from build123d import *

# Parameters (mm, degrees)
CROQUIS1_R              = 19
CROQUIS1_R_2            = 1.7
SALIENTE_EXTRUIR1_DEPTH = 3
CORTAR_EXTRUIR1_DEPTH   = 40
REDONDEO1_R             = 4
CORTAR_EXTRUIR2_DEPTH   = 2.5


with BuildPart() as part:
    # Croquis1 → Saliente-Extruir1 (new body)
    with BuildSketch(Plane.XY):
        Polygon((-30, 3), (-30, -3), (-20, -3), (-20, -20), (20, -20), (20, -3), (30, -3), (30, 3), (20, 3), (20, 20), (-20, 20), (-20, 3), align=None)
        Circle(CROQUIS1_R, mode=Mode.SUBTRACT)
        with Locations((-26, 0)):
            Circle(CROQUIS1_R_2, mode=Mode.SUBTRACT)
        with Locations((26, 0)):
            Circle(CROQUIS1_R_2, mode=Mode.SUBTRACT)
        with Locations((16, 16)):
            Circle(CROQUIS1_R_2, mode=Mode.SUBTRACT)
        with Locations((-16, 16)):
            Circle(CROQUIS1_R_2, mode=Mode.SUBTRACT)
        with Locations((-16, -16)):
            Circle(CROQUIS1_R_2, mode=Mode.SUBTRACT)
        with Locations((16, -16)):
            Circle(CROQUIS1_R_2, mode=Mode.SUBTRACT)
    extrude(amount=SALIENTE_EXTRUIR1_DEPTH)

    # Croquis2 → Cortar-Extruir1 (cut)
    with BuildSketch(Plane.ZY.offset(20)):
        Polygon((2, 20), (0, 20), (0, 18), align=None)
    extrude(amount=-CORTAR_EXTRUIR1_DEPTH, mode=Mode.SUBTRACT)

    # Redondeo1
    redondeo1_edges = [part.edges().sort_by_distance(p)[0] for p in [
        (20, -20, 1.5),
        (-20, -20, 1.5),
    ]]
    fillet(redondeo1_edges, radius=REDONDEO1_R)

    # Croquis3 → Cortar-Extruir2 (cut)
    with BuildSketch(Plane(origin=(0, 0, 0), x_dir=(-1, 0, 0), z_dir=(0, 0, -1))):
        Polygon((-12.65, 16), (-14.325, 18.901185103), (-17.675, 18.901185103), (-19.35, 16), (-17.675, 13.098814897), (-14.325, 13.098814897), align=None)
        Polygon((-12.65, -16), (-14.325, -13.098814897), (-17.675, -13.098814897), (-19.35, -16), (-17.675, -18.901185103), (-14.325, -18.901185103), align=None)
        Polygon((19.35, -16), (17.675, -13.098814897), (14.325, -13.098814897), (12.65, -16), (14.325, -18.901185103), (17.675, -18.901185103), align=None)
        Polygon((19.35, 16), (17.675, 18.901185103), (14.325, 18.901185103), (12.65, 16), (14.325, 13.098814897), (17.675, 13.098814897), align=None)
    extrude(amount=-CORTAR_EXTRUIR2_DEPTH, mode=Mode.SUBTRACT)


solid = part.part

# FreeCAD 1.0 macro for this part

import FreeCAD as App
import Part
import Sketcher

V = App.Vector
Q = App.Units.Quantity


def edges_at(feature, points):
    """Names of the edges that pass closest to the given points."""
    edges = feature.Shape.Edges
    near = lambda p: min(range(len(edges)), key=lambda i: edges[i].distToShape(Part.Vertex(*p))[0])
    return sorted({f"Edge{near(p) + 1}" for p in points})

doc = App.newDocument("Part")
body = doc.addObject("PartDesign::Body", "Body")

sketch1 = doc.addObject("Sketcher::SketchObject", "Sketch")
body.addObject(sketch1)
sketch1.AttachmentSupport = (doc.XY_Plane, [""])
sketch1.MapMode = "FlatFace"
sketch1.addGeometry(Part.LineSegment(V(-30, 3, 0), V(-30, -3, 0)), False)
sketch1.addGeometry(Part.LineSegment(V(-30, -3, 0), V(-20, -3, 0)), False)
sketch1.addGeometry(Part.LineSegment(V(-20, -3, 0), V(-20, -20, 0)), False)
sketch1.addGeometry(Part.LineSegment(V(-20, -20, 0), V(20, -20, 0)), False)
sketch1.addGeometry(Part.LineSegment(V(20, -20, 0), V(20, -3, 0)), False)
sketch1.addGeometry(Part.LineSegment(V(20, -3, 0), V(30, -3, 0)), False)
sketch1.addGeometry(Part.LineSegment(V(30, -3, 0), V(30, 3, 0)), False)
sketch1.addGeometry(Part.LineSegment(V(30, 3, 0), V(20, 3, 0)), False)
sketch1.addGeometry(Part.LineSegment(V(20, 3, 0), V(20, 20, 0)), False)
sketch1.addGeometry(Part.LineSegment(V(20, 20, 0), V(-20, 20, 0)), False)
sketch1.addGeometry(Part.LineSegment(V(-20, 20, 0), V(-20, 3, 0)), False)
sketch1.addGeometry(Part.LineSegment(V(-20, 3, 0), V(-30, 3, 0)), False)
sketch1.addGeometry(Part.Circle(V(-16, -16, 0), V(0, 0, 1), 1.7), False)
sketch1.addGeometry(Part.Circle(V(16, -16, 0), V(0, 0, 1), 1.7), False)
sketch1.addGeometry(Part.Circle(V(-26, 0, 0), V(0, 0, 1), 1.7), False)
sketch1.addGeometry(Part.Circle(V(-16, 16, 0), V(0, 0, 1), 1.7), False)
sketch1.addGeometry(Part.Circle(V(0, 0, 0), V(0, 0, 1), 19), False)
sketch1.addGeometry(Part.Circle(V(26, 0, 0), V(0, 0, 1), 1.7), False)
sketch1.addGeometry(Part.Circle(V(16, 16, 0), V(0, 0, 1), 1.7), False)
sketch1.addConstraint(Sketcher.Constraint("Coincident", 0, 2, 1, 1))
sketch1.addConstraint(Sketcher.Constraint("Coincident", 1, 2, 2, 1))
sketch1.addConstraint(Sketcher.Constraint("Coincident", 2, 2, 3, 1))
sketch1.addConstraint(Sketcher.Constraint("Coincident", 3, 2, 4, 1))
sketch1.addConstraint(Sketcher.Constraint("Coincident", 4, 2, 5, 1))
sketch1.addConstraint(Sketcher.Constraint("Coincident", 5, 2, 6, 1))
sketch1.addConstraint(Sketcher.Constraint("Coincident", 6, 2, 7, 1))
sketch1.addConstraint(Sketcher.Constraint("Coincident", 7, 2, 8, 1))
sketch1.addConstraint(Sketcher.Constraint("Coincident", 8, 2, 9, 1))
sketch1.addConstraint(Sketcher.Constraint("Coincident", 9, 2, 10, 1))
sketch1.addConstraint(Sketcher.Constraint("Coincident", 10, 2, 11, 1))
sketch1.addConstraint(Sketcher.Constraint("Coincident", 11, 2, 0, 1))
sketch1.addConstraint(Sketcher.Constraint("Vertical", 0))
sketch1.addConstraint(Sketcher.Constraint("Horizontal", 1))
sketch1.addConstraint(Sketcher.Constraint("Vertical", 2))
sketch1.addConstraint(Sketcher.Constraint("Horizontal", 3))
sketch1.addConstraint(Sketcher.Constraint("Vertical", 4))
sketch1.addConstraint(Sketcher.Constraint("Horizontal", 5))
sketch1.addConstraint(Sketcher.Constraint("Vertical", 6))
sketch1.addConstraint(Sketcher.Constraint("Horizontal", 7))
sketch1.addConstraint(Sketcher.Constraint("Vertical", 8))
sketch1.addConstraint(Sketcher.Constraint("Horizontal", 9))
sketch1.addConstraint(Sketcher.Constraint("Vertical", 10))
sketch1.addConstraint(Sketcher.Constraint("Horizontal", 11))
sketch1.addConstraint(Sketcher.Constraint("Coincident", 16, 3, -1, 1))
sketch1.addConstraint(Sketcher.Constraint("Equal", 12, 13))
sketch1.addConstraint(Sketcher.Constraint("Equal", 13, 14))
sketch1.addConstraint(Sketcher.Constraint("Equal", 14, 15))
sketch1.addConstraint(Sketcher.Constraint("Equal", 15, 17))
sketch1.addConstraint(Sketcher.Constraint("Equal", 17, 18))
sketch1.addConstraint(Sketcher.Constraint("Symmetric", 13, 3, 15, 3, -1, 1))
sketch1.addConstraint(Sketcher.Constraint("Symmetric", 14, 3, 17, 3, -1, 1))
sketch1.addConstraint(Sketcher.Constraint("Symmetric", 12, 3, 18, 3, -1, 1))
sketch1.addConstraint(Sketcher.Constraint("Symmetric", 0, 2, 6, 2, -1, 1))
sketch1.addConstraint(Sketcher.Constraint("Symmetric", 2, 2, 8, 2, -1, 1))
sketch1.addConstraint(Sketcher.Constraint("Symmetric", 4, 2, 10, 2, -1, 1))
sketch1.addConstraint(Sketcher.Constraint("Symmetric", 12, 3, 13, 3, -2))
sketch1.addConstraint(Sketcher.Constraint("Symmetric", 1, 2, 4, 2, -2))
sketch1.addConstraint(Sketcher.Constraint("PointOnObject", 14, 3, -1))
sketch1.addConstraint(Sketcher.Constraint("Diameter", 16, 38.0))
sketch1.addConstraint(Sketcher.Constraint("Diameter", 12, 3.4))
sketch1.addConstraint(Sketcher.Constraint("DistanceX", 1, 1, 1, 2, 10.0))
sketch1.addConstraint(Sketcher.Constraint("DistanceX", 3, 1, 3, 2, 40.0))
sketch1.addConstraint(Sketcher.Constraint("DistanceY", 0, 2, 0, 1, 6.0))
sketch1.addConstraint(Sketcher.Constraint("DistanceY", 2, 2, 2, 1, 17.0))
sketch1.addConstraint(Sketcher.Constraint("DistanceX", 12, 3, -1, 1, 16.0))
sketch1.addConstraint(Sketcher.Constraint("DistanceY", 12, 3, -1, 1, 16.0))
sketch1.addConstraint(Sketcher.Constraint("DistanceX", 14, 3, -1, 1, 26.0))
pad1 = doc.addObject("PartDesign::Pad", "Pad")
body.addObject(pad1)
pad1.Profile = sketch1
pad1.Length = 3

sketch2 = doc.addObject("Sketcher::SketchObject", "Sketch001")
body.addObject(sketch2)
sketch2.AttachmentSupport = (doc.YZ_Plane, [""])
sketch2.MapMode = "FlatFace"
sketch2.AttachmentOffset = App.Placement(V(0, 0, -20), App.Rotation())
sketch2.addGeometry(Part.LineSegment(V(20, 2, 0), V(20, 0, 0)), False)
sketch2.addGeometry(Part.LineSegment(V(20, 0, 0), V(18, 0, 0)), False)
sketch2.addGeometry(Part.LineSegment(V(18, 0, 0), V(20, 2, 0)), False)
sketch2.addConstraint(Sketcher.Constraint("Coincident", 0, 2, 1, 1))
sketch2.addConstraint(Sketcher.Constraint("Coincident", 1, 2, 2, 1))
sketch2.addConstraint(Sketcher.Constraint("Coincident", 2, 2, 0, 1))
sketch2.addConstraint(Sketcher.Constraint("Vertical", 0))
sketch2.addConstraint(Sketcher.Constraint("Horizontal", 1))
sketch2.addConstraint(Sketcher.Constraint("PointOnObject", 0, 2, -1))
sketch2.addConstraint(Sketcher.Constraint("Equal", 1, 0))
sketch2.addConstraint(Sketcher.Constraint("DistanceX", 1, 2, 1, 1, 2.0))
sketch2.addConstraint(Sketcher.Constraint("DistanceX", -1, 1, 0, 2, 20.0))
pocket1 = doc.addObject("PartDesign::Pocket", "Pocket")
body.addObject(pocket1)
pocket1.Profile = sketch2
pocket1.Length = 40
pocket1.Reversed = True
doc.recompute()

fillet = doc.addObject("PartDesign::Fillet", "Fillet")
body.addObject(fillet)
fillet.Base = (pocket1, edges_at(pocket1, [(20, -20, 1.5), (-20, -20, 1.5)]))
fillet.Radius = 4

sketch3 = doc.addObject("Sketcher::SketchObject", "Sketch002")
body.addObject(sketch3)
sketch3.AttachmentSupport = (doc.XY_Plane, [""])
sketch3.MapMode = "FlatFace"
sketch3.addGeometry(Part.LineSegment(V(12.7, 16, 0), V(14.3, 18.9, 0)), False)
sketch3.addGeometry(Part.LineSegment(V(14.3, 18.9, 0), V(17.7, 18.9, 0)), False)
sketch3.addGeometry(Part.LineSegment(V(17.7, 18.9, 0), V(19.4, 16, 0)), False)
sketch3.addGeometry(Part.LineSegment(V(19.4, 16, 0), V(17.7, 13.1, 0)), False)
sketch3.addGeometry(Part.LineSegment(V(17.7, 13.1, 0), V(14.3, 13.1, 0)), False)
sketch3.addGeometry(Part.LineSegment(V(14.3, 13.1, 0), V(12.7, 16, 0)), False)
sketch3.addGeometry(Part.LineSegment(V(12.7, -16, 0), V(14.3, -13.1, 0)), False)
sketch3.addGeometry(Part.LineSegment(V(14.3, -13.1, 0), V(17.7, -13.1, 0)), False)
sketch3.addGeometry(Part.LineSegment(V(17.7, -13.1, 0), V(19.4, -16, 0)), False)
sketch3.addGeometry(Part.LineSegment(V(19.4, -16, 0), V(17.7, -18.9, 0)), False)
sketch3.addGeometry(Part.LineSegment(V(17.7, -18.9, 0), V(14.3, -18.9, 0)), False)
sketch3.addGeometry(Part.LineSegment(V(14.3, -18.9, 0), V(12.7, -16, 0)), False)
sketch3.addGeometry(Part.LineSegment(V(-19.4, -16, 0), V(-17.7, -13.1, 0)), False)
sketch3.addGeometry(Part.LineSegment(V(-17.7, -13.1, 0), V(-14.3, -13.1, 0)), False)
sketch3.addGeometry(Part.LineSegment(V(-14.3, -13.1, 0), V(-12.7, -16, 0)), False)
sketch3.addGeometry(Part.LineSegment(V(-12.7, -16, 0), V(-14.3, -18.9, 0)), False)
sketch3.addGeometry(Part.LineSegment(V(-14.3, -18.9, 0), V(-17.7, -18.9, 0)), False)
sketch3.addGeometry(Part.LineSegment(V(-17.7, -18.9, 0), V(-19.4, -16, 0)), False)
sketch3.addGeometry(Part.LineSegment(V(-19.4, 16, 0), V(-17.7, 18.9, 0)), False)
sketch3.addGeometry(Part.LineSegment(V(-17.7, 18.9, 0), V(-14.3, 18.9, 0)), False)
sketch3.addGeometry(Part.LineSegment(V(-14.3, 18.9, 0), V(-12.7, 16, 0)), False)
sketch3.addGeometry(Part.LineSegment(V(-12.7, 16, 0), V(-14.3, 13.1, 0)), False)
sketch3.addGeometry(Part.LineSegment(V(-14.3, 13.1, 0), V(-17.7, 13.1, 0)), False)
sketch3.addGeometry(Part.LineSegment(V(-17.7, 13.1, 0), V(-19.4, 16, 0)), False)
sketch3.addConstraint(Sketcher.Constraint("Coincident", 0, 2, 1, 1))
sketch3.addConstraint(Sketcher.Constraint("Coincident", 1, 2, 2, 1))
sketch3.addConstraint(Sketcher.Constraint("Coincident", 2, 2, 3, 1))
sketch3.addConstraint(Sketcher.Constraint("Coincident", 3, 2, 4, 1))
sketch3.addConstraint(Sketcher.Constraint("Coincident", 4, 2, 5, 1))
sketch3.addConstraint(Sketcher.Constraint("Coincident", 5, 2, 0, 1))
sketch3.addConstraint(Sketcher.Constraint("Coincident", 6, 2, 7, 1))
sketch3.addConstraint(Sketcher.Constraint("Coincident", 7, 2, 8, 1))
sketch3.addConstraint(Sketcher.Constraint("Coincident", 8, 2, 9, 1))
sketch3.addConstraint(Sketcher.Constraint("Coincident", 9, 2, 10, 1))
sketch3.addConstraint(Sketcher.Constraint("Coincident", 10, 2, 11, 1))
sketch3.addConstraint(Sketcher.Constraint("Coincident", 11, 2, 6, 1))
sketch3.addConstraint(Sketcher.Constraint("Coincident", 12, 2, 13, 1))
sketch3.addConstraint(Sketcher.Constraint("Coincident", 13, 2, 14, 1))
sketch3.addConstraint(Sketcher.Constraint("Coincident", 14, 2, 15, 1))
sketch3.addConstraint(Sketcher.Constraint("Coincident", 15, 2, 16, 1))
sketch3.addConstraint(Sketcher.Constraint("Coincident", 16, 2, 17, 1))
sketch3.addConstraint(Sketcher.Constraint("Coincident", 17, 2, 12, 1))
sketch3.addConstraint(Sketcher.Constraint("Coincident", 18, 2, 19, 1))
sketch3.addConstraint(Sketcher.Constraint("Coincident", 19, 2, 20, 1))
sketch3.addConstraint(Sketcher.Constraint("Coincident", 20, 2, 21, 1))
sketch3.addConstraint(Sketcher.Constraint("Coincident", 21, 2, 22, 1))
sketch3.addConstraint(Sketcher.Constraint("Coincident", 22, 2, 23, 1))
sketch3.addConstraint(Sketcher.Constraint("Coincident", 23, 2, 18, 1))
sketch3.addConstraint(Sketcher.Constraint("Horizontal", 1))
sketch3.addConstraint(Sketcher.Constraint("Horizontal", 4))
sketch3.addConstraint(Sketcher.Constraint("Horizontal", 7))
sketch3.addConstraint(Sketcher.Constraint("Horizontal", 10))
sketch3.addConstraint(Sketcher.Constraint("Horizontal", 13))
sketch3.addConstraint(Sketcher.Constraint("Horizontal", 16))
sketch3.addConstraint(Sketcher.Constraint("Horizontal", 19))
sketch3.addConstraint(Sketcher.Constraint("Horizontal", 22))
sketch3.addConstraint(Sketcher.Constraint("Symmetric", 3, 2, 12, 2, -1, 1))
sketch3.addConstraint(Sketcher.Constraint("Symmetric", 5, 2, 14, 2, -1, 1))
sketch3.addConstraint(Sketcher.Constraint("Symmetric", 0, 2, 15, 2, -1, 1))
sketch3.addConstraint(Sketcher.Constraint("Symmetric", 2, 2, 17, 2, -1, 1))
sketch3.addConstraint(Sketcher.Constraint("Symmetric", 9, 2, 18, 2, -1, 1))
sketch3.addConstraint(Sketcher.Constraint("Symmetric", 11, 2, 20, 2, -1, 1))
sketch3.addConstraint(Sketcher.Constraint("Symmetric", 6, 2, 21, 2, -1, 1))
sketch3.addConstraint(Sketcher.Constraint("Symmetric", 8, 2, 23, 2, -1, 1))
sketch3.addConstraint(Sketcher.Constraint("Symmetric", 7, 2, 12, 2, -2))
sketch3.addConstraint(Sketcher.Constraint("Symmetric", 11, 2, 14, 2, -2))
sketch3.addConstraint(Sketcher.Constraint("Symmetric", 10, 2, 15, 2, -2))
sketch3.addConstraint(Sketcher.Constraint("Symmetric", 8, 2, 17, 2, -2))
sketch3.addConstraint(Sketcher.Constraint("Parallel", 0, 3))
sketch3.addConstraint(Sketcher.Constraint("Parallel", 2, 5))
sketch3.addConstraint(Sketcher.Constraint("Parallel", 3, 6))
sketch3.addConstraint(Sketcher.Constraint("Parallel", 5, 8))
sketch3.addConstraint(Sketcher.Constraint("Parallel", 6, 9))
sketch3.addConstraint(Sketcher.Constraint("Parallel", 11, 14))
sketch3.addConstraint(Sketcher.Constraint("Parallel", 14, 17))
sketch3.addConstraint(Sketcher.Constraint("Parallel", 17, 20))
sketch3.addConstraint(Sketcher.Constraint("Parallel", 20, 23))
sketch3.addConstraint(Sketcher.Constraint("Horizontal", 2, 2, 5, 2))
sketch3.addConstraint(Sketcher.Constraint("Vertical", 1, 2, 3, 2))
sketch3.addConstraint(Sketcher.Constraint("Angle", 0, Q("60 deg")))
sketch3.addConstraint(Sketcher.Constraint("DistanceY", -1, 1, 2, 2, 16.0))
sketch3.addConstraint(Sketcher.Constraint("DistanceX", 12, 2, 6, 2, 32.0))
sketch3.addConstraint(Sketcher.Constraint("DistanceX", 1, 1, 1, 2, 3.35))
sketch3.addConstraint(Sketcher.Constraint("DistanceX", 5, 2, 2, 2, 6.7))
pocket2 = doc.addObject("PartDesign::Pocket", "Pocket001")
body.addObject(pocket2)
pocket2.Profile = sketch3
pocket2.Length = 2.5
pocket2.Reversed = True

doc.recompute()
